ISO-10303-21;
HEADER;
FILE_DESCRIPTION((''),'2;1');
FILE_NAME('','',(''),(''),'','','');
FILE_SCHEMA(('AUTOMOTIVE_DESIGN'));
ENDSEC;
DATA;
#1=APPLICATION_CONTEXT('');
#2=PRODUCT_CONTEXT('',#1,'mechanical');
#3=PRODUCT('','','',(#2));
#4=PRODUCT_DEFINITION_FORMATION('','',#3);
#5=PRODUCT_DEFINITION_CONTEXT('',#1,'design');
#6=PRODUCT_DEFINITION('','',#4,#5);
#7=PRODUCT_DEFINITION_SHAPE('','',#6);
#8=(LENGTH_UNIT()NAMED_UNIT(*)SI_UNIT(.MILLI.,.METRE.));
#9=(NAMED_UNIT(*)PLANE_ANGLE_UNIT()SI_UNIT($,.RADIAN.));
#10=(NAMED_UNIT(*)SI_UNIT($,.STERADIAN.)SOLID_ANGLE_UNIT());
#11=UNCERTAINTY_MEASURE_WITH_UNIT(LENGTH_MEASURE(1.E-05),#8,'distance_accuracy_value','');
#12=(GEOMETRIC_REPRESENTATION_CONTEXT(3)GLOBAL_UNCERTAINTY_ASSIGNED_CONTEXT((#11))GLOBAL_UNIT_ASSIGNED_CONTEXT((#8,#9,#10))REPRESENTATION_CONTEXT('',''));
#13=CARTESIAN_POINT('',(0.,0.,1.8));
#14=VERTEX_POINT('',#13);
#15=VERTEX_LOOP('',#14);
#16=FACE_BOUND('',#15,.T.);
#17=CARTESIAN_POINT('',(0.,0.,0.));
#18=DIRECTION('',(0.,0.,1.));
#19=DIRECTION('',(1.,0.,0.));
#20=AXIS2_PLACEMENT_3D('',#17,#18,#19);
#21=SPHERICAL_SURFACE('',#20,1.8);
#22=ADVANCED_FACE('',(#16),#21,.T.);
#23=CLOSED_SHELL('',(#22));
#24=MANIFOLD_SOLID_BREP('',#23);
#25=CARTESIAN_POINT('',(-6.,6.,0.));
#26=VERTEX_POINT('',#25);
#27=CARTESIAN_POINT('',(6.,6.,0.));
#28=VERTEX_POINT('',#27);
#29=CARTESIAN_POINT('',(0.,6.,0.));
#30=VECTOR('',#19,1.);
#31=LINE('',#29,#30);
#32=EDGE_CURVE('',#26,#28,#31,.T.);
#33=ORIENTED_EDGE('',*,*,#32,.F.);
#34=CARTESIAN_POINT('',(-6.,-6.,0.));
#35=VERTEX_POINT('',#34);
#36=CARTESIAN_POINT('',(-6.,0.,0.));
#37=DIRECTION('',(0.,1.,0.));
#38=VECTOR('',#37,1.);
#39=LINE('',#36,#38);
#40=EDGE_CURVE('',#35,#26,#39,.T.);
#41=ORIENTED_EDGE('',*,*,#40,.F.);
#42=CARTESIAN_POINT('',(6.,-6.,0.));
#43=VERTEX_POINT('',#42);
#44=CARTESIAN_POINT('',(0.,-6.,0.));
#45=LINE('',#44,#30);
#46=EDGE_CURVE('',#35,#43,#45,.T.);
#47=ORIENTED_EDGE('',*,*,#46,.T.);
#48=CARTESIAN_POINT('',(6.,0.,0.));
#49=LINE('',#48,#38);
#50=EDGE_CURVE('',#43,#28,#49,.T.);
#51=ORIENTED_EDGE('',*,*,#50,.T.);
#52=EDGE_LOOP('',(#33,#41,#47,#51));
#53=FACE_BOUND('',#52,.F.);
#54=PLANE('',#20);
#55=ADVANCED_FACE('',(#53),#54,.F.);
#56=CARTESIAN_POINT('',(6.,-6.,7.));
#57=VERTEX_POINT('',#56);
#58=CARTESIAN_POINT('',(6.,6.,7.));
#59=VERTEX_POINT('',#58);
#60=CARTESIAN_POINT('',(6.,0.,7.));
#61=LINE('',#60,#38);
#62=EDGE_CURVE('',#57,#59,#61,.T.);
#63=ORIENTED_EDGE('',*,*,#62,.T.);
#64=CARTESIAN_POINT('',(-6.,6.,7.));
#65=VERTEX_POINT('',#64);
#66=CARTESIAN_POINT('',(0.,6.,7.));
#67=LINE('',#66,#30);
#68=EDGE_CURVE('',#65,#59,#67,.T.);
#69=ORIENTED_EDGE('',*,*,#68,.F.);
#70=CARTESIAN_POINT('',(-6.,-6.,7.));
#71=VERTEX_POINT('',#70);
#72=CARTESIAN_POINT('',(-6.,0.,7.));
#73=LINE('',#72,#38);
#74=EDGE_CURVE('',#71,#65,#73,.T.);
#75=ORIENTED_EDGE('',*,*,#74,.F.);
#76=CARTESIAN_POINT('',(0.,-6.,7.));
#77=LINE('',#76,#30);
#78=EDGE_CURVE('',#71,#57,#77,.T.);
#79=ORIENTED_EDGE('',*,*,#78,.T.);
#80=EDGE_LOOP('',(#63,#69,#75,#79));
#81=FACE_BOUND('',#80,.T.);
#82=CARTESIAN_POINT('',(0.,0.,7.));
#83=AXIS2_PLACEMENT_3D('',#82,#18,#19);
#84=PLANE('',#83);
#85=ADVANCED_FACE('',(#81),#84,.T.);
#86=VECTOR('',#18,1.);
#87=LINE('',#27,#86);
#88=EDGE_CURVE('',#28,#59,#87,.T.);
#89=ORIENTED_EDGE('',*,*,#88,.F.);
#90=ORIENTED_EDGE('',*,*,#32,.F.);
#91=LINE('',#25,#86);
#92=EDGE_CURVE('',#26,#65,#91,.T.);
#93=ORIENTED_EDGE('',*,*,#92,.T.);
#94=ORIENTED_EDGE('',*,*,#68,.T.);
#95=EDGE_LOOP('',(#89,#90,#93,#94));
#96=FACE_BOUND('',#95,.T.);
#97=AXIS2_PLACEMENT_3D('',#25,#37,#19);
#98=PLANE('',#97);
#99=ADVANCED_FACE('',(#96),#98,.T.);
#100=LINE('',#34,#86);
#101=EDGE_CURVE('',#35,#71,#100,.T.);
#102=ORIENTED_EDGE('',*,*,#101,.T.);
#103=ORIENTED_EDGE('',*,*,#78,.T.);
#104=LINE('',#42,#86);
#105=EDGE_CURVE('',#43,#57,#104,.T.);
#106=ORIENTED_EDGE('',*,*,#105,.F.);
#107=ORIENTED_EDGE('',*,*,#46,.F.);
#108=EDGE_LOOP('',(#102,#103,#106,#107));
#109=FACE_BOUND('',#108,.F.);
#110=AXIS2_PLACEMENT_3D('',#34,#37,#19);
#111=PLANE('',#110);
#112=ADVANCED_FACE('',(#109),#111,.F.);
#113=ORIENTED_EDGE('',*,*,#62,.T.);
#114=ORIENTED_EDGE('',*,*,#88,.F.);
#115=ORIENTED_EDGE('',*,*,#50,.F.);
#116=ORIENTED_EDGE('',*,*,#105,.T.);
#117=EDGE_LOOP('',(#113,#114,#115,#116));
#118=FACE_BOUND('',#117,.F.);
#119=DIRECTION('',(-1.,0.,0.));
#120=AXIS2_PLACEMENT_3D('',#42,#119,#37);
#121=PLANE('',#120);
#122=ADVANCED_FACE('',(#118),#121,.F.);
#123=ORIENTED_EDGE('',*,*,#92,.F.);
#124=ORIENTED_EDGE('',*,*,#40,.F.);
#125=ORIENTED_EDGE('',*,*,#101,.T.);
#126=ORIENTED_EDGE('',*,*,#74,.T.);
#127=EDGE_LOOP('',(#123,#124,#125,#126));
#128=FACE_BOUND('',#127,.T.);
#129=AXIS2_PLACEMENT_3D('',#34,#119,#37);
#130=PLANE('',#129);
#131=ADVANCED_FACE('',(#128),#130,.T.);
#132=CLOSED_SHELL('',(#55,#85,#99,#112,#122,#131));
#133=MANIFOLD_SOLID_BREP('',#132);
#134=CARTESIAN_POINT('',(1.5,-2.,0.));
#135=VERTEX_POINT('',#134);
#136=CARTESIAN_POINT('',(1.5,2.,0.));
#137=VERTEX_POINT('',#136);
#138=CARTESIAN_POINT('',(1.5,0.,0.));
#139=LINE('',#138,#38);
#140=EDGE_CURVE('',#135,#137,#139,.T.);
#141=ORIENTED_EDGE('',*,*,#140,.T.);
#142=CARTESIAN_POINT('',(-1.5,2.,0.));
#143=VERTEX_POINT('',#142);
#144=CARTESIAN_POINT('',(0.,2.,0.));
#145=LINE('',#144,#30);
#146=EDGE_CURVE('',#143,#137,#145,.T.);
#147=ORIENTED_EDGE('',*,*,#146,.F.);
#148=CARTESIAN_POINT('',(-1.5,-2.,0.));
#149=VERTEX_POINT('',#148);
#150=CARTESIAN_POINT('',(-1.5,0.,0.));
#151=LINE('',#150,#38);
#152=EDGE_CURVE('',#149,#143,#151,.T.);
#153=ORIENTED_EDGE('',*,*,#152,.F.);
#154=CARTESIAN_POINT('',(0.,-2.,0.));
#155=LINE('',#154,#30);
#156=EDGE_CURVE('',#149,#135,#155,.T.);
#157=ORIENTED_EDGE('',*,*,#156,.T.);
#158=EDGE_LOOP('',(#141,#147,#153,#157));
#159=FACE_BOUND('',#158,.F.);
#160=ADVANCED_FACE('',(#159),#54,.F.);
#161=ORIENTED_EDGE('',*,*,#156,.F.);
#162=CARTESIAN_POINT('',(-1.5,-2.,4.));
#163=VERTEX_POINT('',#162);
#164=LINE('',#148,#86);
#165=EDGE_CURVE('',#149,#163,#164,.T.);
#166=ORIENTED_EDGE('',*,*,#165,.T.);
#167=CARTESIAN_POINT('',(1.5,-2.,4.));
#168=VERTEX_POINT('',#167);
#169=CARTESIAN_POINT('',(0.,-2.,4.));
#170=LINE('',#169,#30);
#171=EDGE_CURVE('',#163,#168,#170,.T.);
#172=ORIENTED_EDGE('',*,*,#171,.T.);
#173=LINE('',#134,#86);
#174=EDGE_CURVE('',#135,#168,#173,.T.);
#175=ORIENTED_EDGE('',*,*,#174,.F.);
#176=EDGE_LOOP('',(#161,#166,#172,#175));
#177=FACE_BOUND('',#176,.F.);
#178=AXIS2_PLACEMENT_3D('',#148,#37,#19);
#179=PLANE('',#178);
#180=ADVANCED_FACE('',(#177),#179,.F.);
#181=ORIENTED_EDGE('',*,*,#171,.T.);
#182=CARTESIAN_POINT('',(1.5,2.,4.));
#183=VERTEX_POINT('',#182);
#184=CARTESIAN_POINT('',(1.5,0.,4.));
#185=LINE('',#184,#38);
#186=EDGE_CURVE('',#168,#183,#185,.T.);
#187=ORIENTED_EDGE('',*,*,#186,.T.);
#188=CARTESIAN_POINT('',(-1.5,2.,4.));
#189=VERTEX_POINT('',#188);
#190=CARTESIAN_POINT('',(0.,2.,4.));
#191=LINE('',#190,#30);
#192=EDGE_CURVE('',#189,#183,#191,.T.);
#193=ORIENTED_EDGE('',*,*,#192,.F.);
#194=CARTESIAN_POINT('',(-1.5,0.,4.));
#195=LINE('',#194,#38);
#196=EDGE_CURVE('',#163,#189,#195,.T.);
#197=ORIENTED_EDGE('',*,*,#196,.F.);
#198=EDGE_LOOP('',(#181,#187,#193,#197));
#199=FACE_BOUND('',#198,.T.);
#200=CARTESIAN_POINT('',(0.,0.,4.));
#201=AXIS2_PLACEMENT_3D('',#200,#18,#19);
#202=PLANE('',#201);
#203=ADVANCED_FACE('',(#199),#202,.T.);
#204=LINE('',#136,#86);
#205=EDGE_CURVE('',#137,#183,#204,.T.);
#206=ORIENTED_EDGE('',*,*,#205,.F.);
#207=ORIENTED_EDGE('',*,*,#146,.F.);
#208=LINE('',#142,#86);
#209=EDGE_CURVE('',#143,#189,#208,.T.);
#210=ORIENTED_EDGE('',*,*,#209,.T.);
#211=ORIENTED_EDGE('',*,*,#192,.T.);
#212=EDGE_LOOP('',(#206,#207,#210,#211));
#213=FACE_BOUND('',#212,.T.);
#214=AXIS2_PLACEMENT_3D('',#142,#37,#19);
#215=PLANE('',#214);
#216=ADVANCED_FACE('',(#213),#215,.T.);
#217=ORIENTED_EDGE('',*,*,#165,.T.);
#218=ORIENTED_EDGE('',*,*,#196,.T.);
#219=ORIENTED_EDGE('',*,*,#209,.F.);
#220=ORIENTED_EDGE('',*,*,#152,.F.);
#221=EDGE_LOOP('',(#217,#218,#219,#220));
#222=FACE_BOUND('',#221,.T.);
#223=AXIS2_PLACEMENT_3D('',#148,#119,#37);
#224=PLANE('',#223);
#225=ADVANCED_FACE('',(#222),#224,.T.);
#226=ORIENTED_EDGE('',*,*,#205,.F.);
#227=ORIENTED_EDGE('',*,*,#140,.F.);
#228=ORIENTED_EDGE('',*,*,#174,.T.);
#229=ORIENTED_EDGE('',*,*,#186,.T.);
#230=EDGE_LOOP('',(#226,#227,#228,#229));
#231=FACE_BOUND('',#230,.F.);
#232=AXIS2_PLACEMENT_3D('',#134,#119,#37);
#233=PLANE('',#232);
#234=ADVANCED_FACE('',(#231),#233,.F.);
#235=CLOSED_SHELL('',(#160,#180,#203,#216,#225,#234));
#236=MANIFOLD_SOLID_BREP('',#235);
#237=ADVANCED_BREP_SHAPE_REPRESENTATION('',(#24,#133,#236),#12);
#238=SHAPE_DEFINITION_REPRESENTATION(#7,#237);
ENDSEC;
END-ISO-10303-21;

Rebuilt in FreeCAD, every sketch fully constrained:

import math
import FreeCAD as App
import Part
import Sketcher
from FreeCAD import Vector
Q = App.Units.Quantity

doc = App.newDocument("Part")
body = doc.addObject("PartDesign::Body", "Body")

# Sketch on XY plane
sketch1 = body.newObject("Sketcher::SketchObject", "Sketch")
sketch1.AttachmentSupport = (doc.getObject("XY_Plane"), [""])
sketch1.MapMode = "FlatFace"
sketch1.addGeometry(Part.LineSegment(Vector(-1.5, 2, 0), Vector(-1.5, -2, 0)), False)
sketch1.addGeometry(Part.LineSegment(Vector(-1.5, -2, 0), Vector(1.5, -2, 0)), False)
sketch1.addGeometry(Part.LineSegment(Vector(1.5, -2, 0), Vector(1.5, 2, 0)), False)
sketch1.addGeometry(Part.LineSegment(Vector(1.5, 2, 0), Vector(-1.5, 2, 0)), False)
sketch1.addConstraint(Sketcher.Constraint("Coincident", 0, 2, 1, 1))
sketch1.addConstraint(Sketcher.Constraint("Coincident", 1, 2, 2, 1))
sketch1.addConstraint(Sketcher.Constraint("Coincident", 2, 2, 3, 1))
sketch1.addConstraint(Sketcher.Constraint("Coincident", 3, 2, 0, 1))
sketch1.addConstraint(Sketcher.Constraint("Vertical", 0))
sketch1.addConstraint(Sketcher.Constraint("Horizontal", 1))
sketch1.addConstraint(Sketcher.Constraint("Vertical", 2))
sketch1.addConstraint(Sketcher.Constraint("Horizontal", 3))
sketch1.addConstraint(Sketcher.Constraint("Symmetric", 0, 2, 2, 2, -1, 1))
sketch1.addConstraint(Sketcher.Constraint("DistanceX", 1, 1, 1, 2, Q("3 mm")))
sketch1.addConstraint(Sketcher.Constraint("DistanceY", 0, 2, 0, 1, Q("4 mm")))
pad1 = body.newObject("PartDesign::Pad", "Pad")
pad1.Profile = sketch1
pad1.Length = 4
body2 = doc.addObject("PartDesign::Body", "Body001")

# Sketch on XZ plane
sketch2 = body2.newObject("Sketcher::SketchObject", "Sketch001")
sketch2.AttachmentSupport = (doc.getObject("XZ_Plane001"), [""])
sketch2.MapMode = "FlatFace"
sketch2.addGeometry(Part.ArcOfCircle(Part.Circle(Vector(0, 0, 0), Vector(0, 0, 1), 1.8), math.radians(-90), math.radians(90)), False)
sketch2.addGeometry(Part.LineSegment(Vector(0, 1.8, 0), Vector(0, -1.8, 0)), False)
sketch2.addConstraint(Sketcher.Constraint("Coincident", 0, 1, 1, 2))
sketch2.addConstraint(Sketcher.Constraint("Coincident", 1, 1, 0, 2))
sketch2.addConstraint(Sketcher.Constraint("Vertical", 1))
sketch2.addConstraint(Sketcher.Constraint("Coincident", 0, 3, -1, 1))
sketch2.addConstraint(Sketcher.Constraint("PointOnObject", 0, 1, -2))
sketch2.addConstraint(Sketcher.Constraint("Radius", 0, Q("1.8 mm")))
revolution = body2.newObject("PartDesign::Revolution", "Revolution")
revolution.Profile = sketch2
revolution.ReferenceAxis = (sketch2, ["V_Axis"])
revolution.Angle = 360
body3 = doc.addObject("PartDesign::Body", "Body002")

# Sketch on XY plane
sketch3 = body3.newObject("Sketcher::SketchObject", "Sketch002")
sketch3.AttachmentSupport = (doc.getObject("XY_Plane002"), [""])
sketch3.MapMode = "FlatFace"
sketch3.addGeometry(Part.LineSegment(Vector(-6, 6, 0), Vector(-6, -6, 0)), False)
sketch3.addGeometry(Part.LineSegment(Vector(-6, -6, 0), Vector(6, -6, 0)), False)
sketch3.addGeometry(Part.LineSegment(Vector(6, -6, 0), Vector(6, 6, 0)), False)
sketch3.addGeometry(Part.LineSegment(Vector(6, 6, 0), Vector(-6, 6, 0)), False)
sketch3.addConstraint(Sketcher.Constraint("Coincident", 0, 2, 1, 1))
sketch3.addConstraint(Sketcher.Constraint("Coincident", 1, 2, 2, 1))
sketch3.addConstraint(Sketcher.Constraint("Coincident", 2, 2, 3, 1))
sketch3.addConstraint(Sketcher.Constraint("Coincident", 3, 2, 0, 1))
sketch3.addConstraint(Sketcher.Constraint("Vertical", 0))
sketch3.addConstraint(Sketcher.Constraint("Horizontal", 1))
sketch3.addConstraint(Sketcher.Constraint("Vertical", 2))
sketch3.addConstraint(Sketcher.Constraint("Horizontal", 3))
sketch3.addConstraint(Sketcher.Constraint("Symmetric", 0, 2, 2, 2, -1, 1))
sketch3.addConstraint(Sketcher.Constraint("Equal", 3, 0))
sketch3.addConstraint(Sketcher.Constraint("DistanceX", 1, 1, 1, 2, Q("12 mm")))
pad2 = body3.newObject("PartDesign::Pad", "Pad001")
pad2.Profile = sketch3
pad2.Length = 7

doc.recompute()
